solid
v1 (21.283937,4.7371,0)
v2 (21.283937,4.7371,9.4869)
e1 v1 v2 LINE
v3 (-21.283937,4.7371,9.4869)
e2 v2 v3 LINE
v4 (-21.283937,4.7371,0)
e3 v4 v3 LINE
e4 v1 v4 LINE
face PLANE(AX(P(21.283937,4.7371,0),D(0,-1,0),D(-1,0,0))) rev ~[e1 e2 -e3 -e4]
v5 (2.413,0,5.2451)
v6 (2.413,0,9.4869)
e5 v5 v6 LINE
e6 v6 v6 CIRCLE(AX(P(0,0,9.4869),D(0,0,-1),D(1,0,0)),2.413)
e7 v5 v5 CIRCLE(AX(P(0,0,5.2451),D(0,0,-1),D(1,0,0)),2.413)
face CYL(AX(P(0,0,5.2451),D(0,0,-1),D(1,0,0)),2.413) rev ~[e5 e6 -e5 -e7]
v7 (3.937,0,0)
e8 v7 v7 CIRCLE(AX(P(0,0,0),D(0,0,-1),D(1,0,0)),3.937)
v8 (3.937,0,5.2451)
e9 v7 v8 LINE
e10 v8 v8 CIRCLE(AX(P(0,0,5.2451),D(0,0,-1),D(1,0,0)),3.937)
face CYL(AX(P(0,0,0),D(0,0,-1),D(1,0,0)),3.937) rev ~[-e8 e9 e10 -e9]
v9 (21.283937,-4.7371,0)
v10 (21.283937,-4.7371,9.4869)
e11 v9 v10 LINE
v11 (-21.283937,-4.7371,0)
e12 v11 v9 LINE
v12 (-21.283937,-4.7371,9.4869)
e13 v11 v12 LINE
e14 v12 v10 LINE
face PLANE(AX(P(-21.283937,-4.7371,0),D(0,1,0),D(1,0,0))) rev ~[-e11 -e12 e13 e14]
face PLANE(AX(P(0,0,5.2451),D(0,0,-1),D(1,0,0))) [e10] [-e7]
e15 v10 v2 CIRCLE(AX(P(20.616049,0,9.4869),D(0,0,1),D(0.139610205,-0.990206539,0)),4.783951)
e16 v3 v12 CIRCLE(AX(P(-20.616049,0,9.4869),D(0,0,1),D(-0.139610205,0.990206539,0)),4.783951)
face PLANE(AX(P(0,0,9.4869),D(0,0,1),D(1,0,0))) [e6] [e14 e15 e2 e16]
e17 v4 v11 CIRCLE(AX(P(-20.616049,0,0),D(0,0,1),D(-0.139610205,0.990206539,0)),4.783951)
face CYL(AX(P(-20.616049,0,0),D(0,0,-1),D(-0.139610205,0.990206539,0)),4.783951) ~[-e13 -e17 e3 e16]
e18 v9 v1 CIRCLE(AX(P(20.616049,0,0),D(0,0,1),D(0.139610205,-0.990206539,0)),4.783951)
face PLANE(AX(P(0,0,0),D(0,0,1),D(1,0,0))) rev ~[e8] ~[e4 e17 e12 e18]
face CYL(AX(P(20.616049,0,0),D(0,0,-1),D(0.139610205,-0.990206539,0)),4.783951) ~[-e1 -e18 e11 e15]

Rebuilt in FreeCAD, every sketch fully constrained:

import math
import FreeCAD as App
import Part
import Sketcher

V = App.Vector
Q = App.Units.Quantity

doc = App.newDocument("Part")
params = doc.addObject("Spreadsheet::Sheet", "Params")
for row, (alias, value) in enumerate([
    ("pad1_length", "0.3735 in"),
    ("sketch2_diameter", "0.31 in"),
    ("pocket1_length", "0.2065 in"),
    ("sketch3_diameter", "0.19 in"),
], start=1):
    params.set(f"A{row}", alias)
    params.set(f"B{row}", "=" + value)
    params.setAlias(f"B{row}", alias)

body = doc.addObject("PartDesign::Body", "Body")

# Sketch on XY plane
sketch1 = body.newObject("Sketcher::SketchObject", "Sketch")
sketch1.AttachmentSupport = (doc.getObject("XY_Plane"), [""])
sketch1.MapMode = "FlatFace"
sketch1.addGeometry([
    Part.LineSegment(V(21.3, 4.7, 0), V(-21.3, 4.7, 0)),
    Part.ArcOfCircle(Part.Circle(V(-20.6, 0, 0), V(0, 0, 1), 4.8), math.radians(98), math.radians(262)),
    Part.LineSegment(V(-21.3, -4.7, 0), V(21.3, -4.7, 0)),
    Part.ArcOfCircle(Part.Circle(V(20.6, 0, 0), V(0, 0, 1), 4.8), math.radians(-82), math.radians(82)),
], False)
sketch1.addConstraint([
    Sketcher.Constraint("Coincident", 0, 2, 1, 1),
    Sketcher.Constraint("Coincident", 1, 2, 2, 1),
    Sketcher.Constraint("Coincident", 2, 2, 3, 1),
    Sketcher.Constraint("Coincident", 3, 2, 0, 1),
    Sketcher.Constraint("Horizontal", 0),
    Sketcher.Constraint("Horizontal", 2),
    Sketcher.Constraint("Equal", 1, 3),
    Sketcher.Constraint("Symmetric", 1, 3, 3, 3, -1, 1),
    Sketcher.Constraint("Symmetric", 0, 2, 1, 2, -1),
    Sketcher.Constraint("Radius", 1, 4.783951),
    Sketcher.Constraint("DistanceY", 1, 2, 0, 2, Q("0.373 in")),
    Sketcher.Constraint("DistanceX", 0, 2, 0, 1, 42.567874),
])
pad1 = body.newObject("PartDesign::Pad", "Pad")
pad1.Profile = sketch1
pad1.setExpression("Length", "Params.pad1_length")

# Sketch on XY plane
sketch2 = body.newObject("Sketcher::SketchObject", "Sketch001")
sketch2.AttachmentSupport = (doc.getObject("XY_Plane"), [""])
sketch2.MapMode = "FlatFace"
sketch2.addGeometry(Part.Circle(V(0, 0, 0), V(0, 0, 1), 3.9), False)
sketch2.addConstraint([
    Sketcher.Constraint("Coincident", 0, 3, -1, 1),
    Sketcher.Constraint("Diameter", 0, Q("0.31 in")),
])
sketch2.setExpression("Constraints[1]", "Params.sketch2_diameter")
pocket1 = body.newObject("PartDesign::Pocket", "Pocket")
pocket1.Profile = sketch2
pocket1.setExpression("Length", "Params.pocket1_length")
pocket1.Reversed = True

# Sketch on XY plane
sketch3 = body.newObject("Sketcher::SketchObject", "Sketch002")
sketch3.AttachmentSupport = (doc.getObject("XY_Plane"), [""])
sketch3.MapMode = "FlatFace"
sketch3.AttachmentOffset = App.Placement(V(0, 0, 0.2065 * 25.4), App.Rotation())
sketch3.addGeometry(Part.Circle(V(0, 0, 0), V(0, 0, 1), 2.4), False)
sketch3.addConstraint([
    Sketcher.Constraint("Coincident", 0, 3, -1, 1),
    Sketcher.Constraint("Diameter", 0, Q("0.19 in")),
])
sketch3.setExpression("Constraints[1]", "Params.sketch3_diameter")
pocket2 = body.newObject("PartDesign::Pocket", "Pocket001")
pocket2.Profile = sketch3
pocket2.Type = "ThroughAll"
pocket2.Reversed = True

doc.recompute()
